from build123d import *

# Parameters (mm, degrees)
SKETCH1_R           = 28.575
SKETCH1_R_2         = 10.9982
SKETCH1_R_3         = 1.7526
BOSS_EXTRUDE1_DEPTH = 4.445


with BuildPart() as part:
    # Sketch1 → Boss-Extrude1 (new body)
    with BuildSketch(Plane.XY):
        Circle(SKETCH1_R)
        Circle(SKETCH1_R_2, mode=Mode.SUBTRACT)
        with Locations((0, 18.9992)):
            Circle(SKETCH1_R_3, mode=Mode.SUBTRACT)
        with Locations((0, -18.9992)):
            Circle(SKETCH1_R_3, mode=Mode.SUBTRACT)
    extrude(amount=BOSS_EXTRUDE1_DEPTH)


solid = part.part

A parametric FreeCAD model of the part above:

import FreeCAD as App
import Part
import Sketcher
from FreeCAD import Vector
Q = App.Units.Quantity

doc = App.newDocument("Part")
body = doc.addObject("PartDesign::Body", "Body")

sketch1 = body.newObject("Sketcher::SketchObject", "Sketch")
sketch1.AttachmentSupport = (doc.getObject("XY_Plane"), [""])
sketch1.MapMode = "FlatFace"
sketch1.addGeometry([
    Part.Circle(Vector(0, 0, 0), Vector(0, 0, 1), 28.575),
    Part.Circle(Vector(0, -18.9992, 0), Vector(0, 0, 1), 1.7526),
    Part.Circle(Vector(0, 0, 0), Vector(0, 0, 1), 10.9982),
    Part.Circle(Vector(0, 18.9992, 0), Vector(0, 0, 1), 1.7526),
], False)
sketch1.addConstraint([
    Sketcher.Constraint("Coincident", 0, 3, -1, 1),
    Sketcher.Constraint("Coincident", 2, 3, -1, 1),
    Sketcher.Constraint("Equal", 1, 3),
    Sketcher.Constraint("Symmetric", 1, 3, 3, 3, -1, 1),
    Sketcher.Constraint("PointOnObject", 1, 3, -2),
    Sketcher.Constraint("Diameter", 0, Q("2.25 in")),
    Sketcher.Constraint("Diameter", 1, Q("0.138 in")),
    Sketcher.Constraint("Diameter", 2, Q("0.866 in")),
    Sketcher.Constraint("DistanceY", 1, 3, -1, 1, Q("0.748 in")),
])
pad1 = body.newObject("PartDesign::Pad", "Pad")
pad1.Profile = sketch1
pad1.Length = Q("0.175 in")

doc.recompute()
